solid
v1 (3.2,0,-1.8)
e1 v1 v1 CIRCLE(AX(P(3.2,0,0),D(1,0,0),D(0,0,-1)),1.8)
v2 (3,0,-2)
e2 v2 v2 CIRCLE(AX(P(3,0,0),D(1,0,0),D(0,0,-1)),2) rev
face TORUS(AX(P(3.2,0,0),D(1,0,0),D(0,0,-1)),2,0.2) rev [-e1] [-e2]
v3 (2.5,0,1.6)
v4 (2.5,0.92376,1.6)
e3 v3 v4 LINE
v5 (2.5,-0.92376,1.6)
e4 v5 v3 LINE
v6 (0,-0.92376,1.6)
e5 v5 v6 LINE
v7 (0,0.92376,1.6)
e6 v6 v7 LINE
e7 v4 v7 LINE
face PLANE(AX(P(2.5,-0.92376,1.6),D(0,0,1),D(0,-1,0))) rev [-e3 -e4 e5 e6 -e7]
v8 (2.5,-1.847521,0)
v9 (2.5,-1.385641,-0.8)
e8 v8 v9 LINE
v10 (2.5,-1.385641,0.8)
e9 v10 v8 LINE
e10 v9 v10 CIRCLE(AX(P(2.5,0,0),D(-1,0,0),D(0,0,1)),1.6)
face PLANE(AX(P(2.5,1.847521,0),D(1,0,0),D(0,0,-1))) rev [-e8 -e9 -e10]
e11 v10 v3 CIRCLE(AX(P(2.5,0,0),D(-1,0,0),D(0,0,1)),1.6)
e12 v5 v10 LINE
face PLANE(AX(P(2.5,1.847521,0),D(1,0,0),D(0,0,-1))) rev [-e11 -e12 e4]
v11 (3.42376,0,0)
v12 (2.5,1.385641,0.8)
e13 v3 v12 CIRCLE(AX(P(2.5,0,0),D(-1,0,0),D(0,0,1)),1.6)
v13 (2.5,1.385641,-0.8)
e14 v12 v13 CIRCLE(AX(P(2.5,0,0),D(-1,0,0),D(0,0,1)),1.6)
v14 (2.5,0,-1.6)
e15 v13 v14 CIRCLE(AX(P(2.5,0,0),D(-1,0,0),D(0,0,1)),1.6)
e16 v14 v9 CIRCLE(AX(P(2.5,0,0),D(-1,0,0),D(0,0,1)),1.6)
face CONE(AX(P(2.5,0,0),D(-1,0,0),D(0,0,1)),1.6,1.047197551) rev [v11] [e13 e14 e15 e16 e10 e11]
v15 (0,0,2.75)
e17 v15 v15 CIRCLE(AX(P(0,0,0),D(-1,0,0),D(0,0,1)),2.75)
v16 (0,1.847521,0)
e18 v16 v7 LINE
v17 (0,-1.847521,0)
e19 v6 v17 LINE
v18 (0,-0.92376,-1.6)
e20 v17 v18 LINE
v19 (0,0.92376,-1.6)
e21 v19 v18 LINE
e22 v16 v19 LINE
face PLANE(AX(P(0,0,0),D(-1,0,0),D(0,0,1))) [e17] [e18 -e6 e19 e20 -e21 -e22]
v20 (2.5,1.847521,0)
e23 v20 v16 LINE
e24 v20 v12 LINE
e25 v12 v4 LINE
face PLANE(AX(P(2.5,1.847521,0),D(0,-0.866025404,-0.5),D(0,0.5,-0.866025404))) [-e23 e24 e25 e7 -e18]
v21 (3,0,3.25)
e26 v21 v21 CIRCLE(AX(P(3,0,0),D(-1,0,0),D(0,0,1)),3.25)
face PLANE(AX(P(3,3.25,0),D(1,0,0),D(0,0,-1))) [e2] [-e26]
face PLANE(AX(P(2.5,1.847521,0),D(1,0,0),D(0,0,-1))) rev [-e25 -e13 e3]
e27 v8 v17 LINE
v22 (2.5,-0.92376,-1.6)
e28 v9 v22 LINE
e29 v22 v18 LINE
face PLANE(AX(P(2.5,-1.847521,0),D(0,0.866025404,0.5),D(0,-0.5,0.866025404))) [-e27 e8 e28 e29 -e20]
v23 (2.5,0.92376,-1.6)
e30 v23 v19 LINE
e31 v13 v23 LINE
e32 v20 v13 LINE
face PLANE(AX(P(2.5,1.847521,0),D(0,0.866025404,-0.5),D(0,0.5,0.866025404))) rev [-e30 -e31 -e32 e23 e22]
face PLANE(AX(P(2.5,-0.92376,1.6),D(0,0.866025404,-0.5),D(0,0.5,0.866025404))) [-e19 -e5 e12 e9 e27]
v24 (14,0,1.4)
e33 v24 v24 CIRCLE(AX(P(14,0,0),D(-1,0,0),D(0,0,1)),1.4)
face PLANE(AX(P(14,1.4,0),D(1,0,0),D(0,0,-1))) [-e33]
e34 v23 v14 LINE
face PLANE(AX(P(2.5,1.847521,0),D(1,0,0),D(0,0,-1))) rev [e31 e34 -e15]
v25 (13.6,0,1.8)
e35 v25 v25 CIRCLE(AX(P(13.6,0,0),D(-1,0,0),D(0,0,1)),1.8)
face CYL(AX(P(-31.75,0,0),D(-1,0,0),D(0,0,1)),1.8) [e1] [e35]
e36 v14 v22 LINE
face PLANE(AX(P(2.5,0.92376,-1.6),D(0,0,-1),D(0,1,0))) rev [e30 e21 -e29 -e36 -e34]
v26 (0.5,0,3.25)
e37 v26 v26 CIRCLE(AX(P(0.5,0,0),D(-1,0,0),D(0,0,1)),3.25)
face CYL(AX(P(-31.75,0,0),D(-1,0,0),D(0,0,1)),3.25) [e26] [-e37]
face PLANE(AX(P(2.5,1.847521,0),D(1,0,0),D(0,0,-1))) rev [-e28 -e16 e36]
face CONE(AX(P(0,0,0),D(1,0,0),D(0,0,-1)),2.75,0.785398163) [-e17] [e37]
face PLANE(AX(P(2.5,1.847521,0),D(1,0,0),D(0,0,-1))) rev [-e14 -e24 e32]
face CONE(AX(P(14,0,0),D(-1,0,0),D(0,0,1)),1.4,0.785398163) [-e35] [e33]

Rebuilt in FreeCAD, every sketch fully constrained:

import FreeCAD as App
import Part
import Sketcher

V = App.Vector
Q = App.Units.Quantity


def edges_at(feature, points):
    """Names of the edges that pass closest to the given points."""
    edges = feature.Shape.Edges
    near = lambda p: min(range(len(edges)), key=lambda i: edges[i].distToShape(Part.Vertex(*p))[0])
    return sorted({f"Edge{near(p) + 1}" for p in points})


def add_polygon(sketch, points):
    """Adds a closed chain of lines whose ends are joined by coincident constraints."""
    first, n = sketch.GeometryCount, len(points)
    for a, b in zip(points, points[1:] + points[:1]):
        sketch.addGeometry(Part.LineSegment(App.Vector(*a, 0), App.Vector(*b, 0)), False)
    for i in range(n):
        sketch.addConstraint(Sketcher.Constraint("Coincident", first + i, 2, first + (i + 1) % n, 1))

doc = App.newDocument("Part")
params = doc.addObject("Spreadsheet::Sheet", "Params")
for row, (alias, value) in enumerate([
    ("sketch1_width", "14 mm"),
    ("sketch1_width2", "10.6 mm"),
    ("sketch1_width3", "2.5 mm"),
    ("sketch1_height", "1.4 mm"),
    ("sketch1_height2", "2.75 mm"),
    ("revolution_angle", "360 deg"),
    ("fillet_radius", "0.2 mm"),
    ("sketch2_width", "2.5 mm"),
    ("sketch2_height", "1.6 mm"),
    ("groove_angle", "360 deg"),
    ("pocket1_length", "2.5 mm"),
], start=1):
    params.set(f"A{row}", alias)
    params.set(f"B{row}", "=" + value)
    params.setAlias(f"B{row}", alias)

body = doc.addObject("PartDesign::Body", "Body")

# Sketch on XY plane
sketch1 = body.newObject("Sketcher::SketchObject", "Sketch")
sketch1.AttachmentSupport = (doc.getObject("XY_Plane"), [""])
sketch1.MapMode = "FlatFace"
add_polygon(sketch1, [(0, 2.8), (0, 0), (14, 0), (14, 1.4), (13.6, 1.8), (3, 1.8), (3, 3.2), (0.5, 3.2)])  # lines 0-7
sketch1.addConstraint(Sketcher.Constraint("Vertical", 0))
sketch1.addConstraint(Sketcher.Constraint("Horizontal", 1))
sketch1.addConstraint(Sketcher.Constraint("Vertical", 2))
sketch1.addConstraint(Sketcher.Constraint("Horizontal", 4))
sketch1.addConstraint(Sketcher.Constraint("Vertical", 5))
sketch1.addConstraint(Sketcher.Constraint("Horizontal", 6))
sketch1.addConstraint(Sketcher.Constraint("Coincident", 0, 2, -1, 1))
sketch1.addConstraint(Sketcher.Constraint("Perpendicular", 3, 7))
sketch1.addConstraint(Sketcher.Constraint("DistanceX", 1, 1, 1, 2, 14.0))
sketch1.addConstraint(Sketcher.Constraint("Angle", 3, Q("135 deg")))
sketch1.addConstraint(Sketcher.Constraint("DistanceX", 4, 2, 4, 1, 10.6))
sketch1.addConstraint(Sketcher.Constraint("DistanceX", 6, 2, 6, 1, 2.5))
sketch1.addConstraint(Sketcher.Constraint("DistanceY", 2, 1, 2, 2, 1.4))
sketch1.addConstraint(Sketcher.Constraint("DistanceX", -1, 1, 4, 2, 3.0))
sketch1.addConstraint(Sketcher.Constraint("DistanceY", 0, 2, 0, 1, 2.75))
sketch1.setExpression("Constraints[16]", "Params.sketch1_width")
sketch1.setExpression("Constraints[18]", "Params.sketch1_width2")
sketch1.setExpression("Constraints[19]", "Params.sketch1_width3")
sketch1.setExpression("Constraints[20]", "Params.sketch1_height")
sketch1.setExpression("Constraints[22]", "Params.sketch1_height2")
revolution = body.newObject("PartDesign::Revolution", "Revolution")
revolution.Profile = sketch1
revolution.ReferenceAxis = (sketch1, ["H_Axis"])
revolution.setExpression("Angle", "Params.revolution_angle")
doc.recompute()

fillet = body.newObject("PartDesign::Fillet", "Fillet")
fillet.Base = (revolution, edges_at(revolution, [(3, -1.8, 0)]))
fillet.setExpression("Radius", "Params.fillet_radius")

# Sketch on XY plane
sketch2 = body.newObject("Sketcher::SketchObject", "Sketch001")
sketch2.AttachmentSupport = (doc.getObject("XY_Plane"), [""])
sketch2.MapMode = "FlatFace"
add_polygon(sketch2, [(2.5, 1.6), (0, 1.6), (0, 0), (3.4, 0)])  # lines 0-3
sketch2.addConstraint(Sketcher.Constraint("Horizontal", 0))
sketch2.addConstraint(Sketcher.Constraint("Vertical", 1))
sketch2.addConstraint(Sketcher.Constraint("Horizontal", 2))
sketch2.addConstraint(Sketcher.Constraint("Coincident", 1, 2, -1, 1))
sketch2.addConstraint(Sketcher.Constraint("Angle", 3, Q("120 deg")))
sketch2.addConstraint(Sketcher.Constraint("DistanceX", 0, 2, 0, 1, 2.5))
sketch2.addConstraint(Sketcher.Constraint("DistanceY", 1, 2, 1, 1, 1.6))
sketch2.setExpression("Constraints[9]", "Params.sketch2_width")
sketch2.setExpression("Constraints[10]", "Params.sketch2_height")
groove = body.newObject("PartDesign::Groove", "Groove")
groove.Profile = sketch2
groove.ReferenceAxis = (sketch2, ["H_Axis"])
groove.setExpression("Angle", "Params.groove_angle")

# Sketch on YZ plane
sketch3 = body.newObject("Sketcher::SketchObject", "Sketch002")
sketch3.AttachmentSupport = (doc.getObject("YZ_Plane"), [""])
sketch3.MapMode = "FlatFace"
add_polygon(sketch3, [(1.8, 0), (0.9, -1.6), (-0.9, -1.6), (-1.8, 0), (-0.9, 1.6), (0.9, 1.6)])  # lines 0-5
sketch3.addConstraint(Sketcher.Constraint("Horizontal", 1))
sketch3.addConstraint(Sketcher.Constraint("Horizontal", 4))
sketch3.addConstraint(Sketcher.Constraint("Symmetric", 0, 2, 3, 2, -1, 1))
sketch3.addConstraint(Sketcher.Constraint("Symmetric", 2, 2, 5, 2, -1, 1))
sketch3.addConstraint(Sketcher.Constraint("PointOnObject", 2, 2, -1))
sketch3.addConstraint(Sketcher.Constraint("Parallel", 2, 5))
sketch3.addConstraint(Sketcher.Constraint("Vertical", 1, 2, 3, 2))
sketch3.addConstraint(Sketcher.Constraint("Angle", 0, Q("-120 deg")))
sketch3.addConstraint(Sketcher.Constraint("DistanceY", 0, 2, -1, 1, 1.6))
sketch3.addConstraint(Sketcher.Constraint("DistanceX", 1, 2, 1, 1, 1.847521))
pocket1 = body.newObject("PartDesign::Pocket", "Pocket")
pocket1.Profile = sketch3
pocket1.setExpression("Length", "Params.pocket1_length")
pocket1.Reversed = True

doc.recompute()
